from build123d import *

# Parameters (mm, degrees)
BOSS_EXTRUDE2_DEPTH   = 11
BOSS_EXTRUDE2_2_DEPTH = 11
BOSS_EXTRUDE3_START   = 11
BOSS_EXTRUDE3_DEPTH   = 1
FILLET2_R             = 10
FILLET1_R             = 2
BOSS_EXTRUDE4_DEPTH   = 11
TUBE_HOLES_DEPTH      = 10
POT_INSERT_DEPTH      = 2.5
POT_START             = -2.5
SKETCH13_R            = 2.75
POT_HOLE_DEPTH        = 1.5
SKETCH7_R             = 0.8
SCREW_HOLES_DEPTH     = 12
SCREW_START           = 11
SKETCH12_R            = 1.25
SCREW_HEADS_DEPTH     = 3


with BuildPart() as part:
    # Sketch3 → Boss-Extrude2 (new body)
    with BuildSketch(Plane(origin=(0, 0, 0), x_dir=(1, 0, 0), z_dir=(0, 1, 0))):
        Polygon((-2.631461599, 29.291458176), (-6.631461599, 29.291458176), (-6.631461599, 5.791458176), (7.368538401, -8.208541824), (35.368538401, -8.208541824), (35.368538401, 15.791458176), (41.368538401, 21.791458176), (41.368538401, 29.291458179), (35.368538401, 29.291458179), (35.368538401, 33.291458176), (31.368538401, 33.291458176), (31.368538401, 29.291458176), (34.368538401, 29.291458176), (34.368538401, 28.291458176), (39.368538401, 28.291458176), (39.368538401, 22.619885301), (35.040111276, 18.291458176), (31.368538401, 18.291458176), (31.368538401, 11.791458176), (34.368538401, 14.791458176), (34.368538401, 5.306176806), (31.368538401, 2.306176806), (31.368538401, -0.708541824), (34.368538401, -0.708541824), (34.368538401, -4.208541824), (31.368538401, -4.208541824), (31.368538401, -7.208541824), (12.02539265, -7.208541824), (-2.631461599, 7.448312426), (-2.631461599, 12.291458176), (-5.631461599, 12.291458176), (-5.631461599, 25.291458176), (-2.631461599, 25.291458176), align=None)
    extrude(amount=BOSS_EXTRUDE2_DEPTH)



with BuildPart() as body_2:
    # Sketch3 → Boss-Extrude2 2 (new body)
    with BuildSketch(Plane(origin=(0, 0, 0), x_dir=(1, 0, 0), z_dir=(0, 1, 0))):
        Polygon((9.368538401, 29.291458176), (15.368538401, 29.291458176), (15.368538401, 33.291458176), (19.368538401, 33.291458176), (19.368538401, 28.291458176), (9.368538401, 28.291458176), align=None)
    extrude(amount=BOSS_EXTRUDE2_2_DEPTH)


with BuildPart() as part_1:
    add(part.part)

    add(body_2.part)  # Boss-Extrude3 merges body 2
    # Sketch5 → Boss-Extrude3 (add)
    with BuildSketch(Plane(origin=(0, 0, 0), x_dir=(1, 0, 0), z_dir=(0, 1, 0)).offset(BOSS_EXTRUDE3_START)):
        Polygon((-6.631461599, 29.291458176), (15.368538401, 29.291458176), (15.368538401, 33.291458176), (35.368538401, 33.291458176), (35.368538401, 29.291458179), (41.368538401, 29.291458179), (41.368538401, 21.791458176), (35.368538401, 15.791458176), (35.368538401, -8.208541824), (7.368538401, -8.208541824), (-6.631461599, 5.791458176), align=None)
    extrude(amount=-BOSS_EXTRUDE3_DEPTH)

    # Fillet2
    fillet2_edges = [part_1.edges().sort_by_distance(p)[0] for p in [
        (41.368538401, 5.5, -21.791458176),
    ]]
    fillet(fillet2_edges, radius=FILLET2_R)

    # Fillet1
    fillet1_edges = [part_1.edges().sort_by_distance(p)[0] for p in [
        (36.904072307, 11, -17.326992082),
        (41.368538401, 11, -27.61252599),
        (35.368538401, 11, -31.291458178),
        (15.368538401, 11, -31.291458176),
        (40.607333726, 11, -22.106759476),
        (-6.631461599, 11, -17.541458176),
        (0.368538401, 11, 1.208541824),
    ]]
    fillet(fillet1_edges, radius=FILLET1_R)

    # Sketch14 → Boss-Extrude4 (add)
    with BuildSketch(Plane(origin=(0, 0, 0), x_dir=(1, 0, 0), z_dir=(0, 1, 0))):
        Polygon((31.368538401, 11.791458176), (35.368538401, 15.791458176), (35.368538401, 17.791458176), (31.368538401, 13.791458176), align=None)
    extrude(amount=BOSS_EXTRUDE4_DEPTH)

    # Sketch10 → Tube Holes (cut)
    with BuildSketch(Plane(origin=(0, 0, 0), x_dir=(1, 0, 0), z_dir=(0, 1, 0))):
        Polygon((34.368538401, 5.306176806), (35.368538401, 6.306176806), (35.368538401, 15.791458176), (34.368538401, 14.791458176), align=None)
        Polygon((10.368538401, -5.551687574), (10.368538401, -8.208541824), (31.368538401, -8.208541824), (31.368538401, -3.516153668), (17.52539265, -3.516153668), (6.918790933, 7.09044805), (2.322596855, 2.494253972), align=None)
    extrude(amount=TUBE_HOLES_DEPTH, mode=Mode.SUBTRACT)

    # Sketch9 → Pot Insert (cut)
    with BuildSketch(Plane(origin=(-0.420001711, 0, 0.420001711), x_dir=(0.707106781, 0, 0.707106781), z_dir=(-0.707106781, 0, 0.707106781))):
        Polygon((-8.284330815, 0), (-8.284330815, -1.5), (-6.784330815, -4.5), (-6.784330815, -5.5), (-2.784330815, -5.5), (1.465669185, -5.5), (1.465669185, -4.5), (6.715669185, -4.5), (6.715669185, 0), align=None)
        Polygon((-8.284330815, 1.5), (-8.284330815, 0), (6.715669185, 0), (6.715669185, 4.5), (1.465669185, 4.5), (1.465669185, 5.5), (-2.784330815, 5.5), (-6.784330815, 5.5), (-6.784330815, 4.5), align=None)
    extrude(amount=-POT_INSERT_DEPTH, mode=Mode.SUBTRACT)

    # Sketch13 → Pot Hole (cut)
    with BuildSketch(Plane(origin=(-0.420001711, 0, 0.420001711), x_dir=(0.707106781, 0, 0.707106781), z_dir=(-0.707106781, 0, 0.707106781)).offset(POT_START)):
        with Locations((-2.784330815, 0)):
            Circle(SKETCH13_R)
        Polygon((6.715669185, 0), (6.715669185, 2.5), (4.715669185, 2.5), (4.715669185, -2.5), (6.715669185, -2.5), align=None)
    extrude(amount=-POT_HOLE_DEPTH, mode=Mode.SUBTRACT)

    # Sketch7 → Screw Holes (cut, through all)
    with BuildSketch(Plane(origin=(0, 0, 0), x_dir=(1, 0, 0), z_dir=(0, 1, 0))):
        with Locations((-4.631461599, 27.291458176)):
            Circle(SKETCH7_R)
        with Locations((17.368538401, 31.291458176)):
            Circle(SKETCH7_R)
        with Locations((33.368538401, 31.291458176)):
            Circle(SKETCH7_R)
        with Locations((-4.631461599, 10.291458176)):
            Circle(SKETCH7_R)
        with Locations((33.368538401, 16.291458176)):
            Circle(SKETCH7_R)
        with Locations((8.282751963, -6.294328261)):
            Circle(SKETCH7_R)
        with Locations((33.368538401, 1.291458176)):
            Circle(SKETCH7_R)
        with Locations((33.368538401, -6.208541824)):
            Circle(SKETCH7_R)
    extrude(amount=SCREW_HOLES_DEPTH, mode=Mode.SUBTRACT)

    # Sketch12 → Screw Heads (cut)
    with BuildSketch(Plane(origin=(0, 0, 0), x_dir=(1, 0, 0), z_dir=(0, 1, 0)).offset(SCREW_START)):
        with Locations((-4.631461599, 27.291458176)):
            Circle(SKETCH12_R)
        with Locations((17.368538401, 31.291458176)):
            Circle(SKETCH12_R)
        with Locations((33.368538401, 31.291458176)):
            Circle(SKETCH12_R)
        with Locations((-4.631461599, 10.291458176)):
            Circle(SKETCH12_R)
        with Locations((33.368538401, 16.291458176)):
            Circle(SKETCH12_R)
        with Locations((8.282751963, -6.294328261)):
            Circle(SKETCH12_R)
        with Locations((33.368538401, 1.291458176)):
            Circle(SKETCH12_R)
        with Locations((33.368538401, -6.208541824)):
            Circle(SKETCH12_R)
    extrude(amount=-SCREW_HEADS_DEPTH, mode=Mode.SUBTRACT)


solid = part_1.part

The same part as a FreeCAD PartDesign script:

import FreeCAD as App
import Part
import Sketcher
Q = App.Units.Quantity


def edges_at(feature, points):
    """Names of the edges that pass closest to the given points."""
    edges = feature.Shape.Edges
    near = lambda p: min(range(len(edges)), key=lambda i: edges[i].distToShape(Part.Vertex(*p))[0])
    return sorted({f"Edge{near(p) + 1}" for p in points})


def add_polygon(sketch, points):
    """Adds a closed chain of lines whose ends are joined by coincident constraints."""
    first, n = sketch.GeometryCount, len(points)
    for a, b in zip(points, points[1:] + points[:1]):
        sketch.addGeometry(Part.LineSegment(App.Vector(*a, 0), App.Vector(*b, 0)), False)
    for i in range(n):
        sketch.addConstraint(Sketcher.Constraint("Coincident", first + i, 2, first + (i + 1) % n, 1))

doc = App.newDocument("Part")
body = doc.addObject("PartDesign::Body", "Body")

# Sketch on XZ plane
sketch1 = body.newObject("Sketcher::SketchObject", "Sketch")
sketch1.AttachmentSupport = (doc.getObject("XZ_Plane"), [""])
sketch1.MapMode = "FlatFace"
add_polygon(sketch1, [(-2.6, -29.3), (-6.6, -29.3), (-6.6, -5.8), (7.4, 8.2), (35.4, 8.2), (35.4, -15.8), (41.4, -21.8), (41.4, -29.3), (35.4, -29.3), (35.4, -33.3), (31.4, -33.3), (31.4, -29.3), (34.4, -29.3), (34.4, -28.3), (39.4, -28.3), (39.4, -22.6), (35, -18.3), (31.4, -18.3), (31.4, -11.8), (34.4, -14.8), (34.4, -5.3), (31.4, -2.3), (31.4, 0.7), (34.4, 0.7), (34.4, 4.2), (31.4, 4.2), (31.4, 7.2), (12, 7.2), (-2.6, -7.4), (-2.6, -12.3), (-5.6, -12.3), (-5.6, -25.3), (-2.6, -25.3)])  # lines 0-32
sketch1.addConstraint([
    Sketcher.Constraint("Horizontal", 0),
    Sketcher.Constraint("Vertical", 1),
    Sketcher.Constraint("Horizontal", 3),
    Sketcher.Constraint("Vertical", 4),
    Sketcher.Constraint("Vertical", 6),
    Sketcher.Constraint("Horizontal", 7),
    Sketcher.Constraint("Vertical", 8),
    Sketcher.Constraint("Horizontal", 9),
    Sketcher.Constraint("Vertical", 10),
    Sketcher.Constraint("Horizontal", 11),
    Sketcher.Constraint("Vertical", 12),
    Sketcher.Constraint("Horizontal", 13),
    Sketcher.Constraint("Vertical", 14),
    Sketcher.Constraint("Horizontal", 16),
    Sketcher.Constraint("Vertical", 17),
    Sketcher.Constraint("Vertical", 19),
    Sketcher.Constraint("Vertical", 21),
    Sketcher.Constraint("Horizontal", 22),
    Sketcher.Constraint("Vertical", 23),
    Sketcher.Constraint("Horizontal", 24),
    Sketcher.Constraint("Vertical", 25),
    Sketcher.Constraint("Horizontal", 26),
    Sketcher.Constraint("Vertical", 28),
    Sketcher.Constraint("Horizontal", 29),
    Sketcher.Constraint("Vertical", 30),
    Sketcher.Constraint("Horizontal", 31),
    Sketcher.Constraint("Vertical", 32),
    Sketcher.Constraint("Perpendicular", 2, 5),
    Sketcher.Constraint("Parallel", 5, 15),
    Sketcher.Constraint("Parallel", 15, 18),
    Sketcher.Constraint("Parallel", 18, 20),
    Sketcher.Constraint("Perpendicular", 20, 27),
    Sketcher.Constraint("Horizontal", 0, 2, 6, 2),
    Sketcher.Constraint("Horizontal", 7, 2, 10, 2),
    Sketcher.Constraint("Vertical", 4, 2, 7, 2),
    Sketcher.Constraint("Vertical", 10, 2, 16, 2),
    Sketcher.Constraint("Vertical", 12, 2, 18, 2),
    Sketcher.Constraint("Vertical", 17, 2, 20, 2),
    Sketcher.Constraint("Vertical", 19, 2, 22, 2),
    Sketcher.Constraint("Vertical", 21, 2, 24, 2),
    Sketcher.Constraint("Vertical", 28, 2, 31, 2),
    Sketcher.Constraint("Equal", 0, 9),
    Sketcher.Constraint("Equal", 24, 29),
    Sketcher.Constraint("Equal", 9, 8),
    Sketcher.Constraint("Equal", 31, 25),
    Sketcher.Constraint("Equal", 10, 32),
    Sketcher.Constraint("DistanceX", 0, 2, 0, 1, 4.0),
    Sketcher.Constraint("DistanceX", 3, 1, 3, 2, 28.0),
    Sketcher.Constraint("DistanceX", 7, 2, 7, 1, 6.0),
    Sketcher.Constraint("DistanceX", 11, 1, 11, 2, 3.0),
    Sketcher.Constraint("DistanceX", 13, 1, 13, 2, 5.0),
    Sketcher.Constraint("DistanceY", 4, 2, 4, 1, 24.0),
    Sketcher.Constraint("DistanceY", 12, 1, 12, 2, 1.0),
    Sketcher.Constraint("DistanceY", 30, 2, 30, 1, 13.0),
    Sketcher.Constraint("Angle", 2, Q("45 deg")),
    Sketcher.Constraint("DistanceY", 1, 1, 1, 2, 23.5),
    Sketcher.Constraint("DistanceY", 6, 2, 6, 1, 7.5),
    Sketcher.Constraint("DistanceY", 17, 1, 17, 2, 6.5),
    Sketcher.Constraint("DistanceY", 23, 1, 23, 2, 3.5),
    Sketcher.Constraint("DistanceY", 12, 2, 15, 2, 10.0),
    Sketcher.Constraint("DistanceY", 23, 2, 3, 2, 4.0),
    Sketcher.Constraint("DistanceY", 19, 1, 19, 2, 9.485281),
    Sketcher.Constraint("Distance", 15, 6.12132),
    Sketcher.Constraint("DistanceX", 26, 2, 26, 1, 19.343146),
    Sketcher.Constraint("DistanceX", 0, 2, -1, 1, 6.631462),
    Sketcher.Constraint("DistanceY", 0, 2, -1, 1, 29.291458),
])
pad1 = body.newObject("PartDesign::Pad", "Pad")
pad1.Profile = sketch1
pad1.Length = 11
pad1.Reversed = True
body2 = doc.addObject("PartDesign::Body", "Body001")

# Sketch on XZ plane
sketch2 = body2.newObject("Sketcher::SketchObject", "Sketch001")
sketch2.AttachmentSupport = (doc.getObject("XZ_Plane001"), [""])
sketch2.MapMode = "FlatFace"
add_polygon(sketch2, [(15.4, -29.3), (9.4, -29.3), (9.4, -28.3), (19.4, -28.3), (19.4, -33.3), (15.4, -33.3)])  # lines 0-5
sketch2.addConstraint([
    Sketcher.Constraint("Horizontal", 0),
    Sketcher.Constraint("Vertical", 1),
    Sketcher.Constraint("Horizontal", 2),
    Sketcher.Constraint("Vertical", 3),
    Sketcher.Constraint("Horizontal", 4),
    Sketcher.Constraint("Vertical", 5),
    Sketcher.Constraint("Equal", 4, 5),
    Sketcher.Constraint("DistanceX", 0, 2, 0, 1, 6.0),
    Sketcher.Constraint("DistanceX", 2, 1, 2, 2, 10.0),
    Sketcher.Constraint("DistanceY", 1, 1, 1, 2, 1.0),
    Sketcher.Constraint("DistanceX", -1, 1, 0, 2, 9.368538),
    Sketcher.Constraint("DistanceY", 0, 2, -1, 1, 29.291458),
])
pad2 = body2.newObject("PartDesign::Pad", "Pad001")
pad2.Profile = sketch2
pad2.Length = 11
pad2.Reversed = True
body.AllowCompound = True
doc.recompute()

boolean = body.newObject("PartDesign::Boolean", "Boolean")
boolean.Type = "Fuse"
boolean.addObjects([body2])

# Sketch on XZ plane
sketch3 = body.newObject("Sketcher::SketchObject", "Sketch002")
sketch3.AttachmentSupport = (doc.getObject("XZ_Plane"), [""])
sketch3.MapMode = "FlatFace"
sketch3.AttachmentOffset = App.Placement(App.Vector(0, 0, -11), App.Rotation())
add_polygon(sketch3, [(15.4, -29.3), (-6.6, -29.3), (-6.6, -5.8), (7.4, 8.2), (35.4, 8.2), (35.4, -15.8), (41.4, -21.8), (41.4, -29.3), (35.4, -29.3), (35.4, -33.3), (15.4, -33.3)])  # lines 0-10
sketch3.addConstraint([
    Sketcher.Constraint("Horizontal", 0),
    Sketcher.Constraint("Vertical", 1),
    Sketcher.Constraint("Horizontal", 3),
    Sketcher.Constraint("Vertical", 4),
    Sketcher.Constraint("Vertical", 6),
    Sketcher.Constraint("Horizontal", 7),
    Sketcher.Constraint("Vertical", 8),
    Sketcher.Constraint("Horizontal", 9),
    Sketcher.Constraint("Vertical", 10),
    Sketcher.Constraint("Perpendicular", 2, 5),
    Sketcher.Constraint("Horizontal", 0, 2, 6, 2),
    Sketcher.Constraint("Vertical", 4, 2, 7, 2),
    Sketcher.Constraint("DistanceX", 0, 2, 0, 1, 22.0),
    Sketcher.Constraint("DistanceX", 3, 1, 3, 2, 28.0),
    Sketcher.Constraint("DistanceX", 7, 2, 7, 1, 6.0),
    Sketcher.Constraint("DistanceX", 9, 2, 9, 1, 20.0),
    Sketcher.Constraint("DistanceY", 4, 2, 4, 1, 24.0),
    Sketcher.Constraint("DistanceY", 8, 2, 8, 1, 4.0),
    Sketcher.Constraint("Angle", 2, Q("45 deg")),
    Sketcher.Constraint("DistanceY", 1, 1, 1, 2, 23.5),
    Sketcher.Constraint("DistanceX", 0, 2, -1, 1, 6.631462),
    Sketcher.Constraint("DistanceY", 0, 2, -1, 1, 29.291458),
])
pad3 = body.newObject("PartDesign::Pad", "Pad002")
pad3.Profile = sketch3
pad3.Length = 1
doc.recompute()

fillet = body.newObject("PartDesign::Fillet", "Fillet")
fillet.Base = (pad3, edges_at(pad3, [(41.369, 5.5, -21.791)]))
fillet.Radius = 10
doc.recompute()

fillet2 = body.newObject("PartDesign::Fillet", "Fillet001")
fillet2.Base = (fillet, edges_at(fillet, [
    (36.904, 11, -17.327),
    (41.369, 11, -27.613),
    (35.369, 11, -31.291),
    (15.369, 11, -31.291),
    (40.607, 11, -22.107),
    (-6.631, 11, -17.541),
    (0.369, 11, 1.209),
]))
fillet2.Radius = 2

# Sketch on XZ plane
sketch4 = body.newObject("Sketcher::SketchObject", "Sketch003")
sketch4.AttachmentSupport = (doc.getObject("XZ_Plane"), [""])
sketch4.MapMode = "FlatFace"
add_polygon(sketch4, [(31.4, -11.8), (35.4, -15.8), (35.4, -17.8), (31.4, -13.8)])  # lines 0-3
sketch4.addConstraint([
    Sketcher.Constraint("Vertical", 1),
    Sketcher.Constraint("Vertical", 3),
    Sketcher.Constraint("Parallel", 0, 2),
    Sketcher.Constraint("DistanceY", 1, 2, 1, 1, 2.0),
    Sketcher.Constraint("Angle", 0, Q("-45 deg")),
    Sketcher.Constraint("DistanceX", 2, 2, 0, 2, 4.0),
    Sketcher.Constraint("DistanceX", -1, 1, 0, 2, 35.368538),
    Sketcher.Constraint("DistanceY", 0, 2, -1, 1, 15.791458),
])
pad4 = body.newObject("PartDesign::Pad", "Pad003")
pad4.Profile = sketch4
pad4.Length = 11
pad4.Reversed = True

# Sketch on XZ plane
sketch5 = body.newObject("Sketcher::SketchObject", "Sketch004")
sketch5.AttachmentSupport = (doc.getObject("XZ_Plane"), [""])
sketch5.MapMode = "FlatFace"
add_polygon(sketch5, [(34.4, -5.3), (35.4, -6.3), (35.4, -15.8), (34.4, -14.8)])  # lines 0-3
add_polygon(sketch5, [(10.4, 5.6), (10.4, 8.2), (31.4, 8.2), (31.4, 3.5), (17.5, 3.5), (6.9, -7.1), (2.3, -2.5)])  # lines 4-10
sketch5.addConstraint([
    Sketcher.Constraint("Vertical", 1),
    Sketcher.Constraint("Vertical", 3),
    Sketcher.Constraint("Vertical", 4),
    Sketcher.Constraint("Horizontal", 5),
    Sketcher.Constraint("Vertical", 6),
    Sketcher.Constraint("Horizontal", 7),
    Sketcher.Constraint("Parallel", 0, 2),
    Sketcher.Constraint("Perpendicular", 2, 8),
    Sketcher.Constraint("Perpendicular", 8, 9),
    Sketcher.Constraint("Perpendicular", 9, 10),
    Sketcher.Constraint("DistanceX", 5, 1, 5, 2, 21.0),
    Sketcher.Constraint("Angle", 0, Q("-45 deg")),
    Sketcher.Constraint("Distance", 8, 15.0),
    Sketcher.Constraint("DistanceX", 2, 2, 1, 2, 1.0),
    Sketcher.Constraint("DistanceX", 4, 2, 3, 2, 24.0),
    Sketcher.Constraint("DistanceY", 2, 2, 4, 2, 23.0),
    Sketcher.Constraint("Distance", 9, 6.5),
    Sketcher.Constraint("DistanceY", 1, 2, 1, 1, 9.485281),
    Sketcher.Constraint("DistanceY", 6, 2, 6, 1, 4.692388),
    Sketcher.Constraint("Distance", 10, 11.37868),
    Sketcher.Constraint("DistanceX", -1, 1, 0, 2, 35.368538),
    Sketcher.Constraint("DistanceY", 1, 2, -1, 1, 15.791458),
])
pocket1 = body.newObject("PartDesign::Pocket", "Pocket")
pocket1.Profile = sketch5
pocket1.Length = 10

# Sketch on an angled plane
sketch6 = body.newObject("Sketcher::SketchObject", "Sketch005")
sketch6.Placement = App.Placement(App.Vector(-0.420002, 0, 0.420002), App.Rotation(App.Vector(0.707106781, 0, 0.707106781), App.Vector(0, 0.999999999, 0), App.Vector(-0.707106781, 0, 0.707106781), "ZXY"))
add_polygon(sketch6, [(-8.3, -1.5), (-6.8, -4.5), (-6.8, -5.5), (1.5, -5.5), (1.5, -4.5), (6.7, -4.5), (6.7, 4.5), (1.5, 4.5), (1.5, 5.5), (-6.8, 5.5), (-6.8, 4.5), (-8.3, 1.5)])  # lines 0-11
sketch6.addConstraint([
    Sketcher.Constraint("Vertical", 1),
    Sketcher.Constraint("Horizontal", 2),
    Sketcher.Constraint("Vertical", 3),
    Sketcher.Constraint("Horizontal", 4),
    Sketcher.Constraint("Vertical", 5),
    Sketcher.Constraint("Horizontal", 6),
    Sketcher.Constraint("Vertical", 7),
    Sketcher.Constraint("Horizontal", 8),
    Sketcher.Constraint("Vertical", 9),
    Sketcher.Constraint("Vertical", 11),
    Sketcher.Constraint("Symmetric", 3, 2, 6, 2, -1),
    Sketcher.Constraint("Symmetric", 1, 2, 8, 2, -1),
    Sketcher.Constraint("Horizontal", 0, 2, 3, 2),
    Sketcher.Constraint("Horizontal", 6, 2, 9, 2),
    Sketcher.Constraint("Equal", 0, 10),
    Sketcher.Constraint("DistanceY", 1, 2, 1, 1, 1.0),
    Sketcher.Constraint("DistanceY", 5, 1, 5, 2, 9.0),
    Sketcher.Constraint("DistanceY", 11, 2, 11, 1, 3.0),
    Sketcher.Constraint("DistanceX", 2, 1, 2, 2, 8.25),
    Sketcher.Constraint("DistanceX", 4, 1, 4, 2, 5.25),
    Sketcher.Constraint("DistanceX", 10, 2, 9, 2, 1.5),
    Sketcher.Constraint("DistanceX", 0, 2, -1, 1, 6.784331),
])
pocket2 = body.newObject("PartDesign::Pocket", "Pocket001")
pocket2.Profile = sketch6
pocket2.Length = 2.5

# Sketch on an angled plane
sketch7 = body.newObject("Sketcher::SketchObject", "Sketch006")
sketch7.Placement = App.Placement(App.Vector(1.347765, 0, -1.347765), App.Rotation(App.Vector(0.707106781, 0, 0.707106781), App.Vector(0, 0.999999999, 0), App.Vector(-0.707106781, 0, 0.707106781), "ZXY"))
sketch7.addGeometry(Part.Circle(App.Vector(-2.8, 0, 0), App.Vector(0, 0, 1), 2.8), False)  # 0
add_polygon(sketch7, [(6.7, 2.5), (4.7, 2.5), (4.7, -2.5), (6.7, -2.5)])  # lines 1-4
sketch7.addConstraint([
    Sketcher.Constraint("Horizontal", 1),
    Sketcher.Constraint("Vertical", 2),
    Sketcher.Constraint("Horizontal", 3),
    Sketcher.Constraint("Vertical", 4),
    Sketcher.Constraint("PointOnObject", 0, 3, -1),
    Sketcher.Constraint("Diameter", 0, 5.5),
    Sketcher.Constraint("DistanceX", 1, 2, 1, 1, 2.0),
    Sketcher.Constraint("DistanceY", 2, 2, 2, 1, 5.0),
    Sketcher.Constraint("DistanceY", -1, 1, 1, 2, 2.5),
    Sketcher.Constraint("DistanceX", 0, 3, 1, 2, 7.5),
    Sketcher.Constraint("DistanceX", 0, 3, -1, 1, 2.784331),
])
pocket3 = body.newObject("PartDesign::Pocket", "Pocket002")
pocket3.Profile = sketch7
pocket3.Length = 1.5

# Sketch on XZ plane
sketch8 = body.newObject("Sketcher::SketchObject", "Sketch007")
sketch8.AttachmentSupport = (doc.getObject("XZ_Plane"), [""])
sketch8.MapMode = "FlatFace"
sketch8.addGeometry([
    Part.Circle(App.Vector(-4.6, -27.3, 0), App.Vector(0, 0, 1), 0.8),  # 0
    Part.Circle(App.Vector(17.4, -31.3, 0), App.Vector(0, 0, 1), 0.8),  # 1
    Part.Circle(App.Vector(33.4, -31.3, 0), App.Vector(0, 0, 1), 0.8),  # 2
    Part.Circle(App.Vector(-4.6, -10.3, 0), App.Vector(0, 0, 1), 0.8),  # 3
    Part.Circle(App.Vector(33.4, -16.3, 0), App.Vector(0, 0, 1), 0.8),  # 4
    Part.Circle(App.Vector(8.3, 6.3, 0), App.Vector(0, 0, 1), 0.8),  # 5
    Part.Circle(App.Vector(33.4, -1.3, 0), App.Vector(0, 0, 1), 0.8),  # 6
    Part.Circle(App.Vector(33.4, 6.2, 0), App.Vector(0, 0, 1), 0.8),  # 7
], False)
sketch8.addConstraint([
    Sketcher.Constraint("Equal", 0, 1),
    Sketcher.Constraint("Equal", 1, 2),
    Sketcher.Constraint("Equal", 2, 3),
    Sketcher.Constraint("Equal", 3, 4),
    Sketcher.Constraint("Equal", 4, 5),
    Sketcher.Constraint("Equal", 5, 6),
    Sketcher.Constraint("Equal", 6, 7),
    Sketcher.Constraint("Horizontal", 1, 3, 2, 3),
    Sketcher.Constraint("Vertical", 0, 3, 3, 3),
    Sketcher.Constraint("Vertical", 2, 3, 4, 3),
    Sketcher.Constraint("Vertical", 4, 3, 6, 3),
    Sketcher.Constraint("Vertical", 6, 3, 7, 3),
    Sketcher.Constraint("Diameter", 0, 1.6),
    Sketcher.Constraint("DistanceX", 0, 3, 1, 3, 22.0),
    Sketcher.Constraint("DistanceY", 1, 3, 0, 3, 4.0),
    Sketcher.Constraint("DistanceX", 1, 3, 2, 3, 16.0),
    Sketcher.Constraint("DistanceY", 0, 3, 3, 3, 17.0),
    Sketcher.Constraint("DistanceY", 2, 3, 4, 3, 15.0),
    Sketcher.Constraint("DistanceY", 4, 3, 6, 3, 15.0),
    Sketcher.Constraint("DistanceY", 6, 3, 7, 3, 7.5),
    Sketcher.Constraint("DistanceX", 0, 3, -1, 1, 4.631462),
    Sketcher.Constraint("DistanceY", 0, 3, -1, 1, 27.291458),
    Sketcher.Constraint("DistanceX", -1, 1, 5, 3, 8.282752),
    Sketcher.Constraint("DistanceY", -1, 1, 5, 3, 6.294328),
])
pocket4 = body.newObject("PartDesign::Pocket", "Pocket003")
pocket4.Profile = sketch8
pocket4.Type = "ThroughAll"

# Sketch on XZ plane
sketch9 = body.newObject("Sketcher::SketchObject", "Sketch008")
sketch9.AttachmentSupport = (doc.getObject("XZ_Plane"), [""])
sketch9.MapMode = "FlatFace"
sketch9.AttachmentOffset = App.Placement(App.Vector(0, 0, -11), App.Rotation())
sketch9.addGeometry([
    Part.Circle(App.Vector(-4.6, -27.3, 0), App.Vector(0, 0, 1), 1.2),  # 0
    Part.Circle(App.Vector(17.4, -31.3, 0), App.Vector(0, 0, 1), 1.2),  # 1
    Part.Circle(App.Vector(33.4, -31.3, 0), App.Vector(0, 0, 1), 1.2),  # 2
    Part.Circle(App.Vector(-4.6, -10.3, 0), App.Vector(0, 0, 1), 1.2),  # 3
    Part.Circle(App.Vector(33.4, -16.3, 0), App.Vector(0, 0, 1), 1.2),  # 4
    Part.Circle(App.Vector(8.3, 6.3, 0), App.Vector(0, 0, 1), 1.2),  # 5
    Part.Circle(App.Vector(33.4, -1.3, 0), App.Vector(0, 0, 1), 1.2),  # 6
    Part.Circle(App.Vector(33.4, 6.2, 0), App.Vector(0, 0, 1), 1.2),  # 7
], False)
sketch9.addConstraint([
    Sketcher.Constraint("Equal", 0, 1),
    Sketcher.Constraint("Equal", 1, 2),
    Sketcher.Constraint("Equal", 2, 3),
    Sketcher.Constraint("Equal", 3, 4),
    Sketcher.Constraint("Equal", 4, 5),
    Sketcher.Constraint("Equal", 5, 6),
    Sketcher.Constraint("Equal", 6, 7),
    Sketcher.Constraint("Horizontal", 1, 3, 2, 3),
    Sketcher.Constraint("Vertical", 0, 3, 3, 3),
    Sketcher.Constraint("Vertical", 2, 3, 4, 3),
    Sketcher.Constraint("Vertical", 4, 3, 6, 3),
    Sketcher.Constraint("Vertical", 6, 3, 7, 3),
    Sketcher.Constraint("Diameter", 0, 2.5),
    Sketcher.Constraint("DistanceX", 0, 3, 1, 3, 22.0),
    Sketcher.Constraint("DistanceY", 1, 3, 0, 3, 4.0),
    Sketcher.Constraint("DistanceX", 1, 3, 2, 3, 16.0),
    Sketcher.Constraint("DistanceY", 0, 3, 3, 3, 17.0),
    Sketcher.Constraint("DistanceY", 2, 3, 4, 3, 15.0),
    Sketcher.Constraint("DistanceY", 4, 3, 6, 3, 15.0),
    Sketcher.Constraint("DistanceY", 6, 3, 7, 3, 7.5),
    Sketcher.Constraint("DistanceX", 0, 3, -1, 1, 4.631462),
    Sketcher.Constraint("DistanceY", 0, 3, -1, 1, 27.291458),
    Sketcher.Constraint("DistanceX", -1, 1, 5, 3, 8.282752),
    Sketcher.Constraint("DistanceY", -1, 1, 5, 3, 6.294328),
])
pocket5 = body.newObject("PartDesign::Pocket", "Pocket004")
pocket5.Profile = sketch9
pocket5.Length = 3
pocket5.Reversed = True

doc.recompute()
